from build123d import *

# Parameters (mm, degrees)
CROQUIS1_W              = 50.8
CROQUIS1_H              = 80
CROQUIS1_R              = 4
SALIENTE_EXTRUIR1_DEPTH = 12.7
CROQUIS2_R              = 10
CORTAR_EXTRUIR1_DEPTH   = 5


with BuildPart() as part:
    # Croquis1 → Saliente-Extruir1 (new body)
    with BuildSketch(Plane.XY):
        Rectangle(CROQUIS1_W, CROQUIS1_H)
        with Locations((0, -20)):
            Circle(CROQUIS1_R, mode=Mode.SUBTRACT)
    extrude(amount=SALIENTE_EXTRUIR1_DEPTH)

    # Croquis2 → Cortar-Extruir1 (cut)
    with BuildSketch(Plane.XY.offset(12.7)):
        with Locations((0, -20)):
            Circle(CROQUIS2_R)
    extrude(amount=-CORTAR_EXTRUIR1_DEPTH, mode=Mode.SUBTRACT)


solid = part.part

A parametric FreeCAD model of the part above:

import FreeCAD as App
import Part
import Sketcher
Q = App.Units.Quantity


def add_polygon(sketch, points):
    """Adds a closed chain of lines whose ends are joined by coincident constraints."""
    first, n = sketch.GeometryCount, len(points)
    for a, b in zip(points, points[1:] + points[:1]):
        sketch.addGeometry(Part.LineSegment(App.Vector(*a, 0), App.Vector(*b, 0)), False)
    for i in range(n):
        sketch.addConstraint(Sketcher.Constraint("Coincident", first + i, 2, first + (i + 1) % n, 1))

doc = App.newDocument("Part")
params = doc.addObject("Spreadsheet::Sheet", "Params")
for row, (alias, value) in enumerate([
    ("sketch1_diameter", "8 mm"),
    ("sketch1_height", "80 mm"),
    ("sketch1_width", "50.8 mm"),
    ("pad1_length", "12.7 mm"),
    ("sketch2_diameter", "20 mm"),
    ("pocket1_length", "5 mm"),
], start=1):
    params.set(f"A{row}", alias)
    params.set(f"B{row}", "=" + value)
    params.setAlias(f"B{row}", alias)

body = doc.addObject("PartDesign::Body", "Body")

sketch1 = doc.addObject("Sketcher::SketchObject", "Sketch")
body.addObject(sketch1)
sketch1.AttachmentSupport = (doc.XY_Plane, [""])
sketch1.MapMode = "FlatFace"
add_polygon(sketch1, [(-25.4, 40), (-25.4, -40), (25.4, -40), (25.4, 40)])
sketch1.addGeometry(Part.Circle(App.Vector(0, -20, 0), App.Vector(0, 0, 1), 4), False)
sketch1.addConstraint([
    Sketcher.Constraint("Vertical", 0),
    Sketcher.Constraint("Horizontal", 1),
    Sketcher.Constraint("Vertical", 2),
    Sketcher.Constraint("Horizontal", 3),
    Sketcher.Constraint("Symmetric", 0, 2, 2, 2, -1, 1),
    Sketcher.Constraint("PointOnObject", 4, 3, -2),
    Sketcher.Constraint("Diameter", 4, Q("8 mm")),
    Sketcher.Constraint("DistanceY", 0, 2, 0, 1, Q("80 mm")),
    Sketcher.Constraint("DistanceX", 1, 1, 1, 2, Q("50.8 mm")),
    Sketcher.Constraint("DistanceY", 4, 3, -1, 1, Q("20 mm")),
])
sketch1.setExpression("Constraints[10]", "Params.sketch1_diameter")
sketch1.setExpression("Constraints[11]", "Params.sketch1_height")
sketch1.setExpression("Constraints[12]", "Params.sketch1_width")
pad1 = doc.addObject("PartDesign::Pad", "Pad")
body.addObject(pad1)
pad1.Profile = sketch1
pad1.setExpression("Length", "Params.pad1_length")

sketch2 = doc.addObject("Sketcher::SketchObject", "Sketch001")
body.addObject(sketch2)
sketch2.AttachmentSupport = (doc.XY_Plane, [""])
sketch2.MapMode = "FlatFace"
sketch2.AttachmentOffset = App.Placement(App.Vector(0, 0, 12.7), App.Rotation())
sketch2.addGeometry(Part.Circle(App.Vector(0, -20, 0), App.Vector(0, 0, 1), 10), False)
sketch2.addConstraint([
    Sketcher.Constraint("PointOnObject", 0, 3, -2),
    Sketcher.Constraint("Diameter", 0, Q("20 mm")),
    Sketcher.Constraint("DistanceY", 0, 3, -1, 1, Q("20 mm")),
])
sketch2.setExpression("Constraints[1]", "Params.sketch2_diameter")
pocket1 = doc.addObject("PartDesign::Pocket", "Pocket")
body.addObject(pocket1)
pocket1.Profile = sketch2
pocket1.setExpression("Length", "Params.pocket1_length")

doc.recompute()
